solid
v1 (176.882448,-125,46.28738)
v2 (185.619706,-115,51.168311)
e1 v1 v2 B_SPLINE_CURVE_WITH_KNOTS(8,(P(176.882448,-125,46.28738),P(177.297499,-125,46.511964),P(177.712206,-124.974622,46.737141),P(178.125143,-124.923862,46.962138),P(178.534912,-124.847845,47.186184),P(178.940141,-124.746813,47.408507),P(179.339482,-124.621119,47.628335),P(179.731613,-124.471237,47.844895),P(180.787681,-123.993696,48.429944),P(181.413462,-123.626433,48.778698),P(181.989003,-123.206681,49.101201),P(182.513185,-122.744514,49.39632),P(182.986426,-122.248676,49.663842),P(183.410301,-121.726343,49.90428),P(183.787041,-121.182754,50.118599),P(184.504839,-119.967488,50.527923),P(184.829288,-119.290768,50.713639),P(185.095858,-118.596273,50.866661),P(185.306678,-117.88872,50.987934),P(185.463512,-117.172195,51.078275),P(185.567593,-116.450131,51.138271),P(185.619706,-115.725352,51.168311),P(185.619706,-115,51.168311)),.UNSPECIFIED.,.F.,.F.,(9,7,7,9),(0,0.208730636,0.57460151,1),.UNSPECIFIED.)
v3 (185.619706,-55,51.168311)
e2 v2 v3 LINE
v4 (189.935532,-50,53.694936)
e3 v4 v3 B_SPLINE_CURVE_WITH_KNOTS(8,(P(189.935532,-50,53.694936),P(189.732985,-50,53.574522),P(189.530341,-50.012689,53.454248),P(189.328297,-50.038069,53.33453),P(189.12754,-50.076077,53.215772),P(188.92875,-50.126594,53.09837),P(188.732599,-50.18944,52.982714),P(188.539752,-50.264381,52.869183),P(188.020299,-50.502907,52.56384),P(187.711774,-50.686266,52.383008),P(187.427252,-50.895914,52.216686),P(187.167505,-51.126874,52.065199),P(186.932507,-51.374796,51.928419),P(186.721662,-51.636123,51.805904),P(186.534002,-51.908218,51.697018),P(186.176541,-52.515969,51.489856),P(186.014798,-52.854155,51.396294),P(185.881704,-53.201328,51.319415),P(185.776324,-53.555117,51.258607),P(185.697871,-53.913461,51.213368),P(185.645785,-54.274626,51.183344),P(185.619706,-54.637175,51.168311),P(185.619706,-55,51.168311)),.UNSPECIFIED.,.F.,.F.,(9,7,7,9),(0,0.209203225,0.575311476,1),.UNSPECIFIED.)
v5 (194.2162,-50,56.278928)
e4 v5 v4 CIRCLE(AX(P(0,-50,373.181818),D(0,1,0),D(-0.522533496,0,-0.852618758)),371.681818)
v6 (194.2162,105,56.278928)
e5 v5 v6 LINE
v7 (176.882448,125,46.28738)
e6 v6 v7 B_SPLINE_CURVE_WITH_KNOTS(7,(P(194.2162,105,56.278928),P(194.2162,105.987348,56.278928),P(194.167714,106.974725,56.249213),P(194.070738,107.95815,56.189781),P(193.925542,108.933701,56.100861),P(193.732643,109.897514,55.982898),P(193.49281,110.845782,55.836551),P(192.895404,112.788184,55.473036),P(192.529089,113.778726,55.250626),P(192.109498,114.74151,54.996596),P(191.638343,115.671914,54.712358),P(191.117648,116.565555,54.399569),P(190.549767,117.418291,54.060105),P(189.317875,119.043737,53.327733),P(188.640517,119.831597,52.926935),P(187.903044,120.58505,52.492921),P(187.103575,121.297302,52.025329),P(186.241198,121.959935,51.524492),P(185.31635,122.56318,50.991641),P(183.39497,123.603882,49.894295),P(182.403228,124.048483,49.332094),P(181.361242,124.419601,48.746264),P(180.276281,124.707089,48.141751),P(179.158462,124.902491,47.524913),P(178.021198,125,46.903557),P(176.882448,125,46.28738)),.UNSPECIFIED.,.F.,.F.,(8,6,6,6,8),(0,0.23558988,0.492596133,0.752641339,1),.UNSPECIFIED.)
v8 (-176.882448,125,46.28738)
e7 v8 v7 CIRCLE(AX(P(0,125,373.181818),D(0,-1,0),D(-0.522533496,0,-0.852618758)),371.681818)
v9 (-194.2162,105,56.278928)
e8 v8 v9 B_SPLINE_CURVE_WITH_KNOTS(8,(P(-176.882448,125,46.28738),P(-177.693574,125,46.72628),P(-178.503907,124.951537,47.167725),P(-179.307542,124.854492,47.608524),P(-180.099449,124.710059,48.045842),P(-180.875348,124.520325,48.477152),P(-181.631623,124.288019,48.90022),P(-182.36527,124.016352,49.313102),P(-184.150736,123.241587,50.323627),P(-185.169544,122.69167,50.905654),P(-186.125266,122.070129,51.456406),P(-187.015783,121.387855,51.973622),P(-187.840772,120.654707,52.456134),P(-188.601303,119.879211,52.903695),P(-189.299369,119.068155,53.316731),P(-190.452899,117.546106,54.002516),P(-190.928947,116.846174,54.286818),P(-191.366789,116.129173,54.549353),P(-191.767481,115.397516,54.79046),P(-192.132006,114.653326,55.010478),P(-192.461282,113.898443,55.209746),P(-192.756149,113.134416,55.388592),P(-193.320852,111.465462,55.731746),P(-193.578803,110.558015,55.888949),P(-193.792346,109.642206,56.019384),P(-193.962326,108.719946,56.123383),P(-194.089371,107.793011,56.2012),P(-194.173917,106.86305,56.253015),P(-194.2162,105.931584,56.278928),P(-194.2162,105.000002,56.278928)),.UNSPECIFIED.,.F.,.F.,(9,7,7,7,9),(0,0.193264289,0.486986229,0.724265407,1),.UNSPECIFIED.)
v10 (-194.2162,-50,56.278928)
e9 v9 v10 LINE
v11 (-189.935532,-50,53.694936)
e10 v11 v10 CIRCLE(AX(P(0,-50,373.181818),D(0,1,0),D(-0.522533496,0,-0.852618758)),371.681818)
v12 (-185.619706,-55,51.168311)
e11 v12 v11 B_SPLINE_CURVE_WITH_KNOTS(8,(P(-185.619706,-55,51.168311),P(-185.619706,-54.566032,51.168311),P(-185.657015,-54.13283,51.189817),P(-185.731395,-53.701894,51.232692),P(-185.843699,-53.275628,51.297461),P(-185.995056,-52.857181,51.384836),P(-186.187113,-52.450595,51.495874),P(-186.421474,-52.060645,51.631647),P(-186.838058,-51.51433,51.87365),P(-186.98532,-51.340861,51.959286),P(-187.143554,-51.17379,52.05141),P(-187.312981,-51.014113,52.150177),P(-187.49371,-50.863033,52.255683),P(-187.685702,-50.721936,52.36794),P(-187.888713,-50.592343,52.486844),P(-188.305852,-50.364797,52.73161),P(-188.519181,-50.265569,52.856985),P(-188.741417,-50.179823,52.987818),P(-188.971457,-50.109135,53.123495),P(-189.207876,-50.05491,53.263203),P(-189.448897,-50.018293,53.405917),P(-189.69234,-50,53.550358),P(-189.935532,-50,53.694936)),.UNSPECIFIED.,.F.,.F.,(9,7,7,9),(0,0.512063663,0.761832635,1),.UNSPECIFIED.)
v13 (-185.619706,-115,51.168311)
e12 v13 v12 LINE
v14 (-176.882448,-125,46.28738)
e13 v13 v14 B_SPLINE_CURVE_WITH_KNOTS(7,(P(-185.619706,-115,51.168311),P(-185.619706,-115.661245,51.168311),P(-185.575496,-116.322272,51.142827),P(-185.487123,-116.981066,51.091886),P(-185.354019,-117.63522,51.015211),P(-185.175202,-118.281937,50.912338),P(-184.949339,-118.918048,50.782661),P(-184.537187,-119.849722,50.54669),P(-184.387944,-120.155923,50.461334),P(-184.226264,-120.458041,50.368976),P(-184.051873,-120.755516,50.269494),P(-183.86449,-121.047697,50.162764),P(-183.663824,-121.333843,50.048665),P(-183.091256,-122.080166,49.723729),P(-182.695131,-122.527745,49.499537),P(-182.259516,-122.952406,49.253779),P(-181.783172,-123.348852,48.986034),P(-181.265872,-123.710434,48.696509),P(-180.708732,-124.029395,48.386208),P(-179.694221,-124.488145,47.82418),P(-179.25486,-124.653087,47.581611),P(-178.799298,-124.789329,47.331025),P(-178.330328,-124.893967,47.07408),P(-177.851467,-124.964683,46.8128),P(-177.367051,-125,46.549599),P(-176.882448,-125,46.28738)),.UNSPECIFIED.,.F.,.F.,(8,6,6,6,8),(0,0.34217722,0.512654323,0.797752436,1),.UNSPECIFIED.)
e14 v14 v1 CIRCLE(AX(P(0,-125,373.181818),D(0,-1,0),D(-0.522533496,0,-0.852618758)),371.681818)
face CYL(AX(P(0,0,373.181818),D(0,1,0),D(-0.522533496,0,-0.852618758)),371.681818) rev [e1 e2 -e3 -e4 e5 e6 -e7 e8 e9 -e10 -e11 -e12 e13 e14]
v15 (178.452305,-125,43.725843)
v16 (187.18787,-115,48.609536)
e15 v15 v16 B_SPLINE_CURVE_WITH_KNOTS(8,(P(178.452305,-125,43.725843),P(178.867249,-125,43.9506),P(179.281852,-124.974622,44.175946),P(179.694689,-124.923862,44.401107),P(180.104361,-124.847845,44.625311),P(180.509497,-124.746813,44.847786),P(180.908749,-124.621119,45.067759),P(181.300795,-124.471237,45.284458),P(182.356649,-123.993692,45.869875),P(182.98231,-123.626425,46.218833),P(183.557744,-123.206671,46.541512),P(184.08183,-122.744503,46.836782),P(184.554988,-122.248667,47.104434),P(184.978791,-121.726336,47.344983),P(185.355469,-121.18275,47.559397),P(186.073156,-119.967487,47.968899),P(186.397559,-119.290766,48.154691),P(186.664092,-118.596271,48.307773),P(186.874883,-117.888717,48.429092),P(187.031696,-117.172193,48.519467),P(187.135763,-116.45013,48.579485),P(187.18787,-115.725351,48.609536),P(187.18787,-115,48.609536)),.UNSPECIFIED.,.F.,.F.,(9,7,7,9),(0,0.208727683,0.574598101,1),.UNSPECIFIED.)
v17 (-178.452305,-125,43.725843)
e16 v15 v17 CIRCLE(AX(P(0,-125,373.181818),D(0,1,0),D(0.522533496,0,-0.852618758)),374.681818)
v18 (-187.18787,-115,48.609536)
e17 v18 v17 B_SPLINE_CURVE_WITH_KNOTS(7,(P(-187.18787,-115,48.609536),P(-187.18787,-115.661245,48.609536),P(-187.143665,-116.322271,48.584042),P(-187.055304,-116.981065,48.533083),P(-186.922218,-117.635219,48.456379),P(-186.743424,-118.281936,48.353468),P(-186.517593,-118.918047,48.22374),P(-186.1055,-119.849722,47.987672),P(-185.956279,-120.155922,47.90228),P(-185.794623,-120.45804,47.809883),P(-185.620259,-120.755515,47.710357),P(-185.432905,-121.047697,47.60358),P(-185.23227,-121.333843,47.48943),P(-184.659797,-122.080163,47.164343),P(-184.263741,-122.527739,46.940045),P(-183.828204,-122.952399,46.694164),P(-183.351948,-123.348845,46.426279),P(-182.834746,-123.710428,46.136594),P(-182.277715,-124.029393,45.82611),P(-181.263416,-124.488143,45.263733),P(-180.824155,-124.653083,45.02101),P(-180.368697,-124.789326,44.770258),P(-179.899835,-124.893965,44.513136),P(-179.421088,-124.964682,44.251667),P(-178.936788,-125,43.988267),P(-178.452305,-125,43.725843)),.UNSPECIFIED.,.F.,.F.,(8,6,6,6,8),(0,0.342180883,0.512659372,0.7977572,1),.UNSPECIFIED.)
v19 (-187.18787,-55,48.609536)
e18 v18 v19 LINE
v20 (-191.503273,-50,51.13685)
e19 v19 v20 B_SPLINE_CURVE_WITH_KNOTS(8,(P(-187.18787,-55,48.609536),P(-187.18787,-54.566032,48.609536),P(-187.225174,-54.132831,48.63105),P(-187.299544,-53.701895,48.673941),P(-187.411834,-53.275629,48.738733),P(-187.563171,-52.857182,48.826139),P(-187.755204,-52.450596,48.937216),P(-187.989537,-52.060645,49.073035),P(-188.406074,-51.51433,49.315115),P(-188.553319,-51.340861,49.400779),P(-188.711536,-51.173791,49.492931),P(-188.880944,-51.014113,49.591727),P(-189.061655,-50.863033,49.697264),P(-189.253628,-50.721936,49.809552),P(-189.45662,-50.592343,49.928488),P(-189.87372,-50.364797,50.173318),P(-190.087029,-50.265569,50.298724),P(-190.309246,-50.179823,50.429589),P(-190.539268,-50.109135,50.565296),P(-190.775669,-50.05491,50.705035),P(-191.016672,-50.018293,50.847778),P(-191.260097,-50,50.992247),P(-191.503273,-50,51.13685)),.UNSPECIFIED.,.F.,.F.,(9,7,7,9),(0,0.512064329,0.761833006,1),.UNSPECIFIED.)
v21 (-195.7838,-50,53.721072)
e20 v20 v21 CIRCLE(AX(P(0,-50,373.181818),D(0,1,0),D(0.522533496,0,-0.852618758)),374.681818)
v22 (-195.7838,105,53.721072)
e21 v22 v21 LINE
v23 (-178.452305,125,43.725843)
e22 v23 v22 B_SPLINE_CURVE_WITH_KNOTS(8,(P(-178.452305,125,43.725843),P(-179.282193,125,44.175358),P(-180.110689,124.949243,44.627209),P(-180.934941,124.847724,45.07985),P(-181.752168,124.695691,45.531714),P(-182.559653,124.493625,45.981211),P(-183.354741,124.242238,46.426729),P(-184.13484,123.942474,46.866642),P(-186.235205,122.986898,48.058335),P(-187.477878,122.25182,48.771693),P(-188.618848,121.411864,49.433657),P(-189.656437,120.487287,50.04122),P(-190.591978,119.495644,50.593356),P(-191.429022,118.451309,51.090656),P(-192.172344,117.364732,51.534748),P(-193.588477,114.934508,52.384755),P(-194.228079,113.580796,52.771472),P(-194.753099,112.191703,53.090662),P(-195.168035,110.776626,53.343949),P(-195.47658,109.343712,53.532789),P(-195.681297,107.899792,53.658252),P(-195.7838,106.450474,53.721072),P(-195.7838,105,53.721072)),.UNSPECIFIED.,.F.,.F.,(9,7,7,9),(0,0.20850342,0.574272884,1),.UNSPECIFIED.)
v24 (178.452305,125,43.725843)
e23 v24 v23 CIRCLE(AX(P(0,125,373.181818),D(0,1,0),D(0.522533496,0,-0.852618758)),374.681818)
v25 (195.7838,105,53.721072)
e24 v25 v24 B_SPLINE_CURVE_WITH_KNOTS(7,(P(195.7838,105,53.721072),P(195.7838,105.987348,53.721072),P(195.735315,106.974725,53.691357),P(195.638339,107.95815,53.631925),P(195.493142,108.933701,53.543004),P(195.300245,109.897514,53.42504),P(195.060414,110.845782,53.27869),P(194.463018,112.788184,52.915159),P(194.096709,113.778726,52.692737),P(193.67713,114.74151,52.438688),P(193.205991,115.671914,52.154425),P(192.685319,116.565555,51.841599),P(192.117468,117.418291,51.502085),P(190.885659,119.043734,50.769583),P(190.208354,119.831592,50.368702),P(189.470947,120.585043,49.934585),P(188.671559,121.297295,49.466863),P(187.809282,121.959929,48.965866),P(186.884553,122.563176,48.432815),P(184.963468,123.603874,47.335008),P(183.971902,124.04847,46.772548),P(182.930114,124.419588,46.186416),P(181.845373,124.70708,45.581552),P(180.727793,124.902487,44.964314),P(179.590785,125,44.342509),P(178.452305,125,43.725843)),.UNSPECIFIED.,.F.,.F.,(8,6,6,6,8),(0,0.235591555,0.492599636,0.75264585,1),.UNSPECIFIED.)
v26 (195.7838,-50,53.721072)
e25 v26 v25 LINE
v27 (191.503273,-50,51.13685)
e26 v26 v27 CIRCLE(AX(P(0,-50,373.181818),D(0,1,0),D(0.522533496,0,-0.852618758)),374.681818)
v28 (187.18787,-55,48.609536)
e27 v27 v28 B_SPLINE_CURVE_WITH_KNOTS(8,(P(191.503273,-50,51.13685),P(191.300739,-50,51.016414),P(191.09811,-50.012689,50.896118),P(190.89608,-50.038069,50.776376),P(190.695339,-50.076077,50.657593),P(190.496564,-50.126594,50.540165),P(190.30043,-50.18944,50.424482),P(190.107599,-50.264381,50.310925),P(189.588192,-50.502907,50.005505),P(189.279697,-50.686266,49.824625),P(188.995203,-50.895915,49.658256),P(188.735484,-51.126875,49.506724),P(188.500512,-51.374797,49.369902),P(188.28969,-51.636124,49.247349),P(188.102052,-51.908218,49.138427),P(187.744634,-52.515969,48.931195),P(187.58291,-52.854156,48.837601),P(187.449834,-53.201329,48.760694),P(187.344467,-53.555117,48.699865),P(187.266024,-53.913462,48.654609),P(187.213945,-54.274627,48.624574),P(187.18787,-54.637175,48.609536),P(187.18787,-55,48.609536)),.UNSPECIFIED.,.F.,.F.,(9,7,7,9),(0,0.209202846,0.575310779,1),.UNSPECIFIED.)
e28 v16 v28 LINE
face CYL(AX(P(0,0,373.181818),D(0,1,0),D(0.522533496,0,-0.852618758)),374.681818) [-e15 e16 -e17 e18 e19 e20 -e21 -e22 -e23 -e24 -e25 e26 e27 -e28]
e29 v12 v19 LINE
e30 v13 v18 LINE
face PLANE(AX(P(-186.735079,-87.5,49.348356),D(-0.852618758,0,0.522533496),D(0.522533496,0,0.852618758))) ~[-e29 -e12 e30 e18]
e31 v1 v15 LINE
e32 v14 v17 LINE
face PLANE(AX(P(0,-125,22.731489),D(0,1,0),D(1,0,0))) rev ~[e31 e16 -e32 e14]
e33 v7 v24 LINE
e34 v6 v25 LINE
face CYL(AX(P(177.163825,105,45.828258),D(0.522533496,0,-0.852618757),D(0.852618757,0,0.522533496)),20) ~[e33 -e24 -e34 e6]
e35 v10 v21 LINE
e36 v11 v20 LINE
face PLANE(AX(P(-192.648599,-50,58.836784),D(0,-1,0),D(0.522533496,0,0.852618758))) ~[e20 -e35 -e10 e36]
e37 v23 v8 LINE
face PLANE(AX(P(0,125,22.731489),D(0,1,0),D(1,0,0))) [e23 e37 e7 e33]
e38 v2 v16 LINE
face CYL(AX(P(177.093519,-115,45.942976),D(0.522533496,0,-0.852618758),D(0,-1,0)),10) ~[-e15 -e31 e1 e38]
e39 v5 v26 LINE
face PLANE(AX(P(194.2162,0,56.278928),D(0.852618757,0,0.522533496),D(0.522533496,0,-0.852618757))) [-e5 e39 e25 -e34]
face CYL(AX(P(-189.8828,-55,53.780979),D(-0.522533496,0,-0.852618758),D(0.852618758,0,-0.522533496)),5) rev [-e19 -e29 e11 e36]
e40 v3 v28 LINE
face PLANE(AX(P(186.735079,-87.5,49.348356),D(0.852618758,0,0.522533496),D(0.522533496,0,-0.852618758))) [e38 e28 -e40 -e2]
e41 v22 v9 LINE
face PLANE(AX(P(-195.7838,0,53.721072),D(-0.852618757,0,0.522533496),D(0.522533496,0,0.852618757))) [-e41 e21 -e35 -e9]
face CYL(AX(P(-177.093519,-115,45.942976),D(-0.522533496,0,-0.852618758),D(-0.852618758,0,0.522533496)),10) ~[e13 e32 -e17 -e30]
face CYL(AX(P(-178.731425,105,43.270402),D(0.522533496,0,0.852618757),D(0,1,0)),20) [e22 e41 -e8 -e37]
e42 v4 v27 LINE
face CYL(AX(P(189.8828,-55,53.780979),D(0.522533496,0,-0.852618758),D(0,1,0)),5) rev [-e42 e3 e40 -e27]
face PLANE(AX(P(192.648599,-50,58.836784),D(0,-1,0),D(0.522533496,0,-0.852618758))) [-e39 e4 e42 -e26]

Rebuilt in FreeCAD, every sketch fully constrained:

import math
import FreeCAD as App
import Part
import Sketcher


def edges_at(feature, points):
    """Names of the edges that pass closest to the given points."""
    edges = feature.Shape.Edges
    near = lambda p: min(range(len(edges)), key=lambda i: edges[i].distToShape(Part.Vertex(*p))[0])
    return sorted({f"Edge{near(p) + 1}" for p in points})


def add_polygon(sketch, points):
    """Adds a closed chain of lines whose ends are joined by coincident constraints."""
    first, n = sketch.GeometryCount, len(points)
    for a, b in zip(points, points[1:] + points[:1]):
        sketch.addGeometry(Part.LineSegment(App.Vector(*a, 0), App.Vector(*b, 0)), False)
    for i in range(n):
        sketch.addConstraint(Sketcher.Constraint("Coincident", first + i, 2, first + (i + 1) % n, 1))

doc = App.newDocument("Part")
body = doc.addObject("PartDesign::Body", "Body")

# Sketch on XZ plane
sketch1 = body.newObject("Sketcher::SketchObject", "Sketch")
sketch1.AttachmentSupport = (doc.getObject("XZ_Plane"), [""])
sketch1.MapMode = "FlatFace"
sketch1.addGeometry([
    Part.ArcOfCircle(Part.Circle(App.Vector(0, 373.2, 0), App.Vector(0, 0, 1), 371.7), math.radians(-122), math.radians(-58)),
    Part.LineSegment(App.Vector(194.2, 56.3, 0), App.Vector(195.8, 53.7, 0)),
    Part.ArcOfCircle(Part.Circle(App.Vector(0, 373.2, 0), App.Vector(0, 0, 1), 374.7), math.radians(-122), math.radians(-58)),
    Part.LineSegment(App.Vector(-195.8, 53.7, 0), App.Vector(-194.2, 56.3, 0)),
], False)
sketch1.addConstraint([
    Sketcher.Constraint("Coincident", 0, 2, 1, 1),
    Sketcher.Constraint("Coincident", 1, 2, 2, 2),
    Sketcher.Constraint("Coincident", 2, 1, 3, 1),
    Sketcher.Constraint("Coincident", 3, 2, 0, 1),
    Sketcher.Constraint("Coincident", 2, 3, 0, 3),
    Sketcher.Constraint("Symmetric", 1, 2, 2, 1, -2),
    Sketcher.Constraint("Horizontal", 0, 2, 3, 2),
    Sketcher.Constraint("Distance", 1, 3.0),
    Sketcher.Constraint("DistanceX", 2, 1, 0, 2, 390.0),
    Sketcher.Constraint("Radius", 0, 371.681818),
    Sketcher.Constraint("DistanceX", -1, 1, 1, 2, 195.7838),
    Sketcher.Constraint("DistanceY", -1, 1, 0, 3, 373.181818),
])
pad1 = body.newObject("PartDesign::Pad", "Pad")
pad1.Profile = sketch1
pad1.Length = 250
pad1.Midplane = True

# Sketch on an angled plane
sketch2 = body.newObject("Sketcher::SketchObject", "Sketch001")
sketch2.Placement = App.Placement(App.Vector(166.260658, 0, 101.894032), App.Rotation(App.Vector(0.522533496, 0, -0.852618758), App.Vector(0, 1.000000001, 0), App.Vector(0.852618758, 0, 0.522533496), "ZXY"))
add_polygon(sketch2, [(51, -50), (51, -125), (61, -125), (61, -50)])  # lines 0-3
sketch2.addConstraint([
    Sketcher.Constraint("Vertical", 0),
    Sketcher.Constraint("Horizontal", 1),
    Sketcher.Constraint("Vertical", 2),
    Sketcher.Constraint("Horizontal", 3),
    Sketcher.Constraint("DistanceX", 1, 1, 1, 2, 10.0),
    Sketcher.Constraint("DistanceY", 0, 2, 0, 1, 75.0),
    Sketcher.Constraint("DistanceY", 0, 2, -1, 1, 125.0),
    Sketcher.Constraint("DistanceX", -1, 1, 0, 2, 50.5),
])
pocket1 = body.newObject("PartDesign::Pocket", "Pocket")
pocket1.Profile = sketch2
pocket1.Length = 10
doc.recompute()

fillet = body.newObject("PartDesign::Fillet", "Fillet")
fillet.Base = (pocket1, edges_at(pocket1, [(186.404, -50, 49.889)]))
fillet.Radius = 5
doc.recompute()

fillet2 = body.newObject("PartDesign::Fillet", "Fillet001")
fillet2.Base = (fillet, edges_at(fillet, [(-195, 125, 55), (195, 125, 55)]))
fillet2.Radius = 20
doc.recompute()

mirrored = body.newObject("PartDesign::Mirrored", "Mirrored")
mirrored.Originals = [pocket1]
mirrored.MirrorPlane = (doc.getObject("YZ_Plane"), [""])
body.Tip = mirrored
doc.recompute()

fillet3 = body.newObject("PartDesign::Fillet", "Fillet002")
fillet3.Base = (mirrored, edges_at(mirrored, [(-186.404, -50, 49.889)]))
fillet3.Radius = 5
doc.recompute()

fillet4 = body.newObject("PartDesign::Fillet", "Fillet003")
fillet4.Base = (fillet3, edges_at(fillet3, [(186.404, -125, 49.889), (-186.404, -125, 49.889)]))
fillet4.Radius = 10

doc.recompute()
